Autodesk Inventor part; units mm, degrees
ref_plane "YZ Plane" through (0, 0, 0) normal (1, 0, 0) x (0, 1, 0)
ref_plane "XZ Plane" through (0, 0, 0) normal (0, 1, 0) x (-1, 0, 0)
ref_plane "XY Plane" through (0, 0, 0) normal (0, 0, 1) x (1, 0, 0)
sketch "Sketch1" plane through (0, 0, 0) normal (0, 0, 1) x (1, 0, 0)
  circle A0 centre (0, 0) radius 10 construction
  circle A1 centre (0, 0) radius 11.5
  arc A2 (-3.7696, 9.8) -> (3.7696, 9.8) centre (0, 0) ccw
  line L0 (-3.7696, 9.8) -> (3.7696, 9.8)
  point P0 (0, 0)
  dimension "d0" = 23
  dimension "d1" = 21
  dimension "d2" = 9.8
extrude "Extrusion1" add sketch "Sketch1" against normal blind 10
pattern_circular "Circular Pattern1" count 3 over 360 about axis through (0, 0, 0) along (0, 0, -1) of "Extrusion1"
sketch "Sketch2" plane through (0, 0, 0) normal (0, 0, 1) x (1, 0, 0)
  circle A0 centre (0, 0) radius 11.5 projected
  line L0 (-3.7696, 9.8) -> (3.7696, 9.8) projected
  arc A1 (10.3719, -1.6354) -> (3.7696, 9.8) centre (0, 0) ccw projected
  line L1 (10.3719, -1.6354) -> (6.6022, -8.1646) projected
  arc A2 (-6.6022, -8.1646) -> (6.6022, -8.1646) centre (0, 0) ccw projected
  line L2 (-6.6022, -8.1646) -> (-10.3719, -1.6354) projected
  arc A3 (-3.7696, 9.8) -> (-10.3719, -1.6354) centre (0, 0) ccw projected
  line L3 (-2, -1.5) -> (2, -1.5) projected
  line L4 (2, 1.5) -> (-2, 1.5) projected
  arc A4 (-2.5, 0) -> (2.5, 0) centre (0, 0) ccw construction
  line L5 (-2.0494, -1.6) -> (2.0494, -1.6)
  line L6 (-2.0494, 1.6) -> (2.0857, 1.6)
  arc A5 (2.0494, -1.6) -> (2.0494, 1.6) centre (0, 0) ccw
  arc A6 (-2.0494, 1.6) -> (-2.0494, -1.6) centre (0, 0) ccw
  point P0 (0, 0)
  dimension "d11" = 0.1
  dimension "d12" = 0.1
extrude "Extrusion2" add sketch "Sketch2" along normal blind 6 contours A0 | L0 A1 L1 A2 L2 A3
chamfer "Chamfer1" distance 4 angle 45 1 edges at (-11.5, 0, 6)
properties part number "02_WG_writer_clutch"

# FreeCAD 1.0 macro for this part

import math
import FreeCAD as App
import Part
import Sketcher

V = App.Vector


def edges_at(feature, points):
    """Names of the edges that pass closest to the given points."""
    edges = feature.Shape.Edges
    near = lambda p: min(range(len(edges)), key=lambda i: edges[i].distToShape(Part.Vertex(*p))[0])
    return sorted({f"Edge{near(p) + 1}" for p in points})

doc = App.newDocument("Part")
body = doc.addObject("PartDesign::Body", "Body")

# Sketch on XY plane
sketch1 = body.newObject("Sketcher::SketchObject", "Sketch")
sketch1.AttachmentSupport = (doc.getObject("XY_Plane"), [""])
sketch1.MapMode = "FlatFace"
sketch1.addGeometry(Part.Circle(V(0, 0, 0), V(0, 0, 1), 12), False)
sketch1.addGeometry(Part.ArcOfCircle(Part.Circle(V(0, 0, 0), V(0, 0, 1), 10), math.radians(111), math.radians(429)), False)
sketch1.addGeometry(Part.LineSegment(V(-4, 10, 0), V(4, 10, 0)), False)
sketch1.addConstraint(Sketcher.Constraint("Coincident", 1, 1, 2, 1))
sketch1.addConstraint(Sketcher.Constraint("Coincident", 2, 2, 1, 2))
sketch1.addConstraint(Sketcher.Constraint("Horizontal", 2))
sketch1.addConstraint(Sketcher.Constraint("Coincident", 0, 3, -1, 1))
sketch1.addConstraint(Sketcher.Constraint("Coincident", 1, 3, -1, 1))
sketch1.addConstraint(Sketcher.Constraint("Diameter", 0, 23.0))
sketch1.addConstraint(Sketcher.Constraint("Radius", 1, 10.5))
sketch1.addConstraint(Sketcher.Constraint("DistanceY", -1, 1, 1, 1, 9.8))
pad1 = body.newObject("PartDesign::Pad", "Pad")
pad1.Profile = sketch1
pad1.Length = 10
pad1.Reversed = True
doc.recompute()

polarpattern = body.newObject("PartDesign::PolarPattern", "PolarPattern")
polarpattern.Originals = [pad1]
polarpattern.Axis = (doc.getObject("Z_Axis"), [""])
polarpattern.Angle = 360
polarpattern.Occurrences = 3
body.Tip = polarpattern

# Sketch on XY plane
sketch2 = body.newObject("Sketcher::SketchObject", "Sketch001")
sketch2.AttachmentSupport = (doc.getObject("XY_Plane"), [""])
sketch2.MapMode = "FlatFace"
sketch2.addGeometry(Part.Circle(V(0, 0, 0), V(0, 0, 1), 11.5), False)
sketch2.addGeometry(Part.LineSegment(V(-2, 1.6, 0), V(2, 1.6, 0)), False)
sketch2.addGeometry(Part.ArcOfCircle(Part.Circle(V(0, 0, 0), V(0, 0, 1), 2.6), math.radians(-38), math.radians(38)), False)
sketch2.addGeometry(Part.LineSegment(V(2, -1.6, 0), V(-2, -1.6, 0)), False)
sketch2.addGeometry(Part.ArcOfCircle(Part.Circle(V(0, 0, 0), V(0, 0, 1), 2.6), math.radians(142), math.radians(218)), False)
sketch2.addConstraint(Sketcher.Constraint("Coincident", 1, 2, 2, 2))
sketch2.addConstraint(Sketcher.Constraint("Coincident", 2, 1, 3, 1))
sketch2.addConstraint(Sketcher.Constraint("Coincident", 3, 2, 4, 2))
sketch2.addConstraint(Sketcher.Constraint("Coincident", 4, 1, 1, 1))
sketch2.addConstraint(Sketcher.Constraint("Horizontal", 1))
sketch2.addConstraint(Sketcher.Constraint("Horizontal", 3))
sketch2.addConstraint(Sketcher.Constraint("Coincident", 0, 3, -1, 1))
sketch2.addConstraint(Sketcher.Constraint("Coincident", 2, 3, -1, 1))
sketch2.addConstraint(Sketcher.Constraint("Coincident", 4, 3, -1, 1))
sketch2.addConstraint(Sketcher.Constraint("Equal", 2, 4))
sketch2.addConstraint(Sketcher.Constraint("Vertical", 1, 2, 2, 1))
sketch2.addConstraint(Sketcher.Constraint("Diameter", 0, 23.0))
sketch2.addConstraint(Sketcher.Constraint("Radius", 2, 2.6))
sketch2.addConstraint(Sketcher.Constraint("DistanceY", -1, 1, 1, 2, 1.6))
pad2 = body.newObject("PartDesign::Pad", "Pad001")
pad2.Profile = sketch2
pad2.Length = 6
doc.recompute()

chamfer = body.newObject("PartDesign::Chamfer", "Chamfer")
chamfer.Base = (pad2, edges_at(pad2, [(-11.5, 0, 6)]))
chamfer.Size = 4

doc.recompute()
